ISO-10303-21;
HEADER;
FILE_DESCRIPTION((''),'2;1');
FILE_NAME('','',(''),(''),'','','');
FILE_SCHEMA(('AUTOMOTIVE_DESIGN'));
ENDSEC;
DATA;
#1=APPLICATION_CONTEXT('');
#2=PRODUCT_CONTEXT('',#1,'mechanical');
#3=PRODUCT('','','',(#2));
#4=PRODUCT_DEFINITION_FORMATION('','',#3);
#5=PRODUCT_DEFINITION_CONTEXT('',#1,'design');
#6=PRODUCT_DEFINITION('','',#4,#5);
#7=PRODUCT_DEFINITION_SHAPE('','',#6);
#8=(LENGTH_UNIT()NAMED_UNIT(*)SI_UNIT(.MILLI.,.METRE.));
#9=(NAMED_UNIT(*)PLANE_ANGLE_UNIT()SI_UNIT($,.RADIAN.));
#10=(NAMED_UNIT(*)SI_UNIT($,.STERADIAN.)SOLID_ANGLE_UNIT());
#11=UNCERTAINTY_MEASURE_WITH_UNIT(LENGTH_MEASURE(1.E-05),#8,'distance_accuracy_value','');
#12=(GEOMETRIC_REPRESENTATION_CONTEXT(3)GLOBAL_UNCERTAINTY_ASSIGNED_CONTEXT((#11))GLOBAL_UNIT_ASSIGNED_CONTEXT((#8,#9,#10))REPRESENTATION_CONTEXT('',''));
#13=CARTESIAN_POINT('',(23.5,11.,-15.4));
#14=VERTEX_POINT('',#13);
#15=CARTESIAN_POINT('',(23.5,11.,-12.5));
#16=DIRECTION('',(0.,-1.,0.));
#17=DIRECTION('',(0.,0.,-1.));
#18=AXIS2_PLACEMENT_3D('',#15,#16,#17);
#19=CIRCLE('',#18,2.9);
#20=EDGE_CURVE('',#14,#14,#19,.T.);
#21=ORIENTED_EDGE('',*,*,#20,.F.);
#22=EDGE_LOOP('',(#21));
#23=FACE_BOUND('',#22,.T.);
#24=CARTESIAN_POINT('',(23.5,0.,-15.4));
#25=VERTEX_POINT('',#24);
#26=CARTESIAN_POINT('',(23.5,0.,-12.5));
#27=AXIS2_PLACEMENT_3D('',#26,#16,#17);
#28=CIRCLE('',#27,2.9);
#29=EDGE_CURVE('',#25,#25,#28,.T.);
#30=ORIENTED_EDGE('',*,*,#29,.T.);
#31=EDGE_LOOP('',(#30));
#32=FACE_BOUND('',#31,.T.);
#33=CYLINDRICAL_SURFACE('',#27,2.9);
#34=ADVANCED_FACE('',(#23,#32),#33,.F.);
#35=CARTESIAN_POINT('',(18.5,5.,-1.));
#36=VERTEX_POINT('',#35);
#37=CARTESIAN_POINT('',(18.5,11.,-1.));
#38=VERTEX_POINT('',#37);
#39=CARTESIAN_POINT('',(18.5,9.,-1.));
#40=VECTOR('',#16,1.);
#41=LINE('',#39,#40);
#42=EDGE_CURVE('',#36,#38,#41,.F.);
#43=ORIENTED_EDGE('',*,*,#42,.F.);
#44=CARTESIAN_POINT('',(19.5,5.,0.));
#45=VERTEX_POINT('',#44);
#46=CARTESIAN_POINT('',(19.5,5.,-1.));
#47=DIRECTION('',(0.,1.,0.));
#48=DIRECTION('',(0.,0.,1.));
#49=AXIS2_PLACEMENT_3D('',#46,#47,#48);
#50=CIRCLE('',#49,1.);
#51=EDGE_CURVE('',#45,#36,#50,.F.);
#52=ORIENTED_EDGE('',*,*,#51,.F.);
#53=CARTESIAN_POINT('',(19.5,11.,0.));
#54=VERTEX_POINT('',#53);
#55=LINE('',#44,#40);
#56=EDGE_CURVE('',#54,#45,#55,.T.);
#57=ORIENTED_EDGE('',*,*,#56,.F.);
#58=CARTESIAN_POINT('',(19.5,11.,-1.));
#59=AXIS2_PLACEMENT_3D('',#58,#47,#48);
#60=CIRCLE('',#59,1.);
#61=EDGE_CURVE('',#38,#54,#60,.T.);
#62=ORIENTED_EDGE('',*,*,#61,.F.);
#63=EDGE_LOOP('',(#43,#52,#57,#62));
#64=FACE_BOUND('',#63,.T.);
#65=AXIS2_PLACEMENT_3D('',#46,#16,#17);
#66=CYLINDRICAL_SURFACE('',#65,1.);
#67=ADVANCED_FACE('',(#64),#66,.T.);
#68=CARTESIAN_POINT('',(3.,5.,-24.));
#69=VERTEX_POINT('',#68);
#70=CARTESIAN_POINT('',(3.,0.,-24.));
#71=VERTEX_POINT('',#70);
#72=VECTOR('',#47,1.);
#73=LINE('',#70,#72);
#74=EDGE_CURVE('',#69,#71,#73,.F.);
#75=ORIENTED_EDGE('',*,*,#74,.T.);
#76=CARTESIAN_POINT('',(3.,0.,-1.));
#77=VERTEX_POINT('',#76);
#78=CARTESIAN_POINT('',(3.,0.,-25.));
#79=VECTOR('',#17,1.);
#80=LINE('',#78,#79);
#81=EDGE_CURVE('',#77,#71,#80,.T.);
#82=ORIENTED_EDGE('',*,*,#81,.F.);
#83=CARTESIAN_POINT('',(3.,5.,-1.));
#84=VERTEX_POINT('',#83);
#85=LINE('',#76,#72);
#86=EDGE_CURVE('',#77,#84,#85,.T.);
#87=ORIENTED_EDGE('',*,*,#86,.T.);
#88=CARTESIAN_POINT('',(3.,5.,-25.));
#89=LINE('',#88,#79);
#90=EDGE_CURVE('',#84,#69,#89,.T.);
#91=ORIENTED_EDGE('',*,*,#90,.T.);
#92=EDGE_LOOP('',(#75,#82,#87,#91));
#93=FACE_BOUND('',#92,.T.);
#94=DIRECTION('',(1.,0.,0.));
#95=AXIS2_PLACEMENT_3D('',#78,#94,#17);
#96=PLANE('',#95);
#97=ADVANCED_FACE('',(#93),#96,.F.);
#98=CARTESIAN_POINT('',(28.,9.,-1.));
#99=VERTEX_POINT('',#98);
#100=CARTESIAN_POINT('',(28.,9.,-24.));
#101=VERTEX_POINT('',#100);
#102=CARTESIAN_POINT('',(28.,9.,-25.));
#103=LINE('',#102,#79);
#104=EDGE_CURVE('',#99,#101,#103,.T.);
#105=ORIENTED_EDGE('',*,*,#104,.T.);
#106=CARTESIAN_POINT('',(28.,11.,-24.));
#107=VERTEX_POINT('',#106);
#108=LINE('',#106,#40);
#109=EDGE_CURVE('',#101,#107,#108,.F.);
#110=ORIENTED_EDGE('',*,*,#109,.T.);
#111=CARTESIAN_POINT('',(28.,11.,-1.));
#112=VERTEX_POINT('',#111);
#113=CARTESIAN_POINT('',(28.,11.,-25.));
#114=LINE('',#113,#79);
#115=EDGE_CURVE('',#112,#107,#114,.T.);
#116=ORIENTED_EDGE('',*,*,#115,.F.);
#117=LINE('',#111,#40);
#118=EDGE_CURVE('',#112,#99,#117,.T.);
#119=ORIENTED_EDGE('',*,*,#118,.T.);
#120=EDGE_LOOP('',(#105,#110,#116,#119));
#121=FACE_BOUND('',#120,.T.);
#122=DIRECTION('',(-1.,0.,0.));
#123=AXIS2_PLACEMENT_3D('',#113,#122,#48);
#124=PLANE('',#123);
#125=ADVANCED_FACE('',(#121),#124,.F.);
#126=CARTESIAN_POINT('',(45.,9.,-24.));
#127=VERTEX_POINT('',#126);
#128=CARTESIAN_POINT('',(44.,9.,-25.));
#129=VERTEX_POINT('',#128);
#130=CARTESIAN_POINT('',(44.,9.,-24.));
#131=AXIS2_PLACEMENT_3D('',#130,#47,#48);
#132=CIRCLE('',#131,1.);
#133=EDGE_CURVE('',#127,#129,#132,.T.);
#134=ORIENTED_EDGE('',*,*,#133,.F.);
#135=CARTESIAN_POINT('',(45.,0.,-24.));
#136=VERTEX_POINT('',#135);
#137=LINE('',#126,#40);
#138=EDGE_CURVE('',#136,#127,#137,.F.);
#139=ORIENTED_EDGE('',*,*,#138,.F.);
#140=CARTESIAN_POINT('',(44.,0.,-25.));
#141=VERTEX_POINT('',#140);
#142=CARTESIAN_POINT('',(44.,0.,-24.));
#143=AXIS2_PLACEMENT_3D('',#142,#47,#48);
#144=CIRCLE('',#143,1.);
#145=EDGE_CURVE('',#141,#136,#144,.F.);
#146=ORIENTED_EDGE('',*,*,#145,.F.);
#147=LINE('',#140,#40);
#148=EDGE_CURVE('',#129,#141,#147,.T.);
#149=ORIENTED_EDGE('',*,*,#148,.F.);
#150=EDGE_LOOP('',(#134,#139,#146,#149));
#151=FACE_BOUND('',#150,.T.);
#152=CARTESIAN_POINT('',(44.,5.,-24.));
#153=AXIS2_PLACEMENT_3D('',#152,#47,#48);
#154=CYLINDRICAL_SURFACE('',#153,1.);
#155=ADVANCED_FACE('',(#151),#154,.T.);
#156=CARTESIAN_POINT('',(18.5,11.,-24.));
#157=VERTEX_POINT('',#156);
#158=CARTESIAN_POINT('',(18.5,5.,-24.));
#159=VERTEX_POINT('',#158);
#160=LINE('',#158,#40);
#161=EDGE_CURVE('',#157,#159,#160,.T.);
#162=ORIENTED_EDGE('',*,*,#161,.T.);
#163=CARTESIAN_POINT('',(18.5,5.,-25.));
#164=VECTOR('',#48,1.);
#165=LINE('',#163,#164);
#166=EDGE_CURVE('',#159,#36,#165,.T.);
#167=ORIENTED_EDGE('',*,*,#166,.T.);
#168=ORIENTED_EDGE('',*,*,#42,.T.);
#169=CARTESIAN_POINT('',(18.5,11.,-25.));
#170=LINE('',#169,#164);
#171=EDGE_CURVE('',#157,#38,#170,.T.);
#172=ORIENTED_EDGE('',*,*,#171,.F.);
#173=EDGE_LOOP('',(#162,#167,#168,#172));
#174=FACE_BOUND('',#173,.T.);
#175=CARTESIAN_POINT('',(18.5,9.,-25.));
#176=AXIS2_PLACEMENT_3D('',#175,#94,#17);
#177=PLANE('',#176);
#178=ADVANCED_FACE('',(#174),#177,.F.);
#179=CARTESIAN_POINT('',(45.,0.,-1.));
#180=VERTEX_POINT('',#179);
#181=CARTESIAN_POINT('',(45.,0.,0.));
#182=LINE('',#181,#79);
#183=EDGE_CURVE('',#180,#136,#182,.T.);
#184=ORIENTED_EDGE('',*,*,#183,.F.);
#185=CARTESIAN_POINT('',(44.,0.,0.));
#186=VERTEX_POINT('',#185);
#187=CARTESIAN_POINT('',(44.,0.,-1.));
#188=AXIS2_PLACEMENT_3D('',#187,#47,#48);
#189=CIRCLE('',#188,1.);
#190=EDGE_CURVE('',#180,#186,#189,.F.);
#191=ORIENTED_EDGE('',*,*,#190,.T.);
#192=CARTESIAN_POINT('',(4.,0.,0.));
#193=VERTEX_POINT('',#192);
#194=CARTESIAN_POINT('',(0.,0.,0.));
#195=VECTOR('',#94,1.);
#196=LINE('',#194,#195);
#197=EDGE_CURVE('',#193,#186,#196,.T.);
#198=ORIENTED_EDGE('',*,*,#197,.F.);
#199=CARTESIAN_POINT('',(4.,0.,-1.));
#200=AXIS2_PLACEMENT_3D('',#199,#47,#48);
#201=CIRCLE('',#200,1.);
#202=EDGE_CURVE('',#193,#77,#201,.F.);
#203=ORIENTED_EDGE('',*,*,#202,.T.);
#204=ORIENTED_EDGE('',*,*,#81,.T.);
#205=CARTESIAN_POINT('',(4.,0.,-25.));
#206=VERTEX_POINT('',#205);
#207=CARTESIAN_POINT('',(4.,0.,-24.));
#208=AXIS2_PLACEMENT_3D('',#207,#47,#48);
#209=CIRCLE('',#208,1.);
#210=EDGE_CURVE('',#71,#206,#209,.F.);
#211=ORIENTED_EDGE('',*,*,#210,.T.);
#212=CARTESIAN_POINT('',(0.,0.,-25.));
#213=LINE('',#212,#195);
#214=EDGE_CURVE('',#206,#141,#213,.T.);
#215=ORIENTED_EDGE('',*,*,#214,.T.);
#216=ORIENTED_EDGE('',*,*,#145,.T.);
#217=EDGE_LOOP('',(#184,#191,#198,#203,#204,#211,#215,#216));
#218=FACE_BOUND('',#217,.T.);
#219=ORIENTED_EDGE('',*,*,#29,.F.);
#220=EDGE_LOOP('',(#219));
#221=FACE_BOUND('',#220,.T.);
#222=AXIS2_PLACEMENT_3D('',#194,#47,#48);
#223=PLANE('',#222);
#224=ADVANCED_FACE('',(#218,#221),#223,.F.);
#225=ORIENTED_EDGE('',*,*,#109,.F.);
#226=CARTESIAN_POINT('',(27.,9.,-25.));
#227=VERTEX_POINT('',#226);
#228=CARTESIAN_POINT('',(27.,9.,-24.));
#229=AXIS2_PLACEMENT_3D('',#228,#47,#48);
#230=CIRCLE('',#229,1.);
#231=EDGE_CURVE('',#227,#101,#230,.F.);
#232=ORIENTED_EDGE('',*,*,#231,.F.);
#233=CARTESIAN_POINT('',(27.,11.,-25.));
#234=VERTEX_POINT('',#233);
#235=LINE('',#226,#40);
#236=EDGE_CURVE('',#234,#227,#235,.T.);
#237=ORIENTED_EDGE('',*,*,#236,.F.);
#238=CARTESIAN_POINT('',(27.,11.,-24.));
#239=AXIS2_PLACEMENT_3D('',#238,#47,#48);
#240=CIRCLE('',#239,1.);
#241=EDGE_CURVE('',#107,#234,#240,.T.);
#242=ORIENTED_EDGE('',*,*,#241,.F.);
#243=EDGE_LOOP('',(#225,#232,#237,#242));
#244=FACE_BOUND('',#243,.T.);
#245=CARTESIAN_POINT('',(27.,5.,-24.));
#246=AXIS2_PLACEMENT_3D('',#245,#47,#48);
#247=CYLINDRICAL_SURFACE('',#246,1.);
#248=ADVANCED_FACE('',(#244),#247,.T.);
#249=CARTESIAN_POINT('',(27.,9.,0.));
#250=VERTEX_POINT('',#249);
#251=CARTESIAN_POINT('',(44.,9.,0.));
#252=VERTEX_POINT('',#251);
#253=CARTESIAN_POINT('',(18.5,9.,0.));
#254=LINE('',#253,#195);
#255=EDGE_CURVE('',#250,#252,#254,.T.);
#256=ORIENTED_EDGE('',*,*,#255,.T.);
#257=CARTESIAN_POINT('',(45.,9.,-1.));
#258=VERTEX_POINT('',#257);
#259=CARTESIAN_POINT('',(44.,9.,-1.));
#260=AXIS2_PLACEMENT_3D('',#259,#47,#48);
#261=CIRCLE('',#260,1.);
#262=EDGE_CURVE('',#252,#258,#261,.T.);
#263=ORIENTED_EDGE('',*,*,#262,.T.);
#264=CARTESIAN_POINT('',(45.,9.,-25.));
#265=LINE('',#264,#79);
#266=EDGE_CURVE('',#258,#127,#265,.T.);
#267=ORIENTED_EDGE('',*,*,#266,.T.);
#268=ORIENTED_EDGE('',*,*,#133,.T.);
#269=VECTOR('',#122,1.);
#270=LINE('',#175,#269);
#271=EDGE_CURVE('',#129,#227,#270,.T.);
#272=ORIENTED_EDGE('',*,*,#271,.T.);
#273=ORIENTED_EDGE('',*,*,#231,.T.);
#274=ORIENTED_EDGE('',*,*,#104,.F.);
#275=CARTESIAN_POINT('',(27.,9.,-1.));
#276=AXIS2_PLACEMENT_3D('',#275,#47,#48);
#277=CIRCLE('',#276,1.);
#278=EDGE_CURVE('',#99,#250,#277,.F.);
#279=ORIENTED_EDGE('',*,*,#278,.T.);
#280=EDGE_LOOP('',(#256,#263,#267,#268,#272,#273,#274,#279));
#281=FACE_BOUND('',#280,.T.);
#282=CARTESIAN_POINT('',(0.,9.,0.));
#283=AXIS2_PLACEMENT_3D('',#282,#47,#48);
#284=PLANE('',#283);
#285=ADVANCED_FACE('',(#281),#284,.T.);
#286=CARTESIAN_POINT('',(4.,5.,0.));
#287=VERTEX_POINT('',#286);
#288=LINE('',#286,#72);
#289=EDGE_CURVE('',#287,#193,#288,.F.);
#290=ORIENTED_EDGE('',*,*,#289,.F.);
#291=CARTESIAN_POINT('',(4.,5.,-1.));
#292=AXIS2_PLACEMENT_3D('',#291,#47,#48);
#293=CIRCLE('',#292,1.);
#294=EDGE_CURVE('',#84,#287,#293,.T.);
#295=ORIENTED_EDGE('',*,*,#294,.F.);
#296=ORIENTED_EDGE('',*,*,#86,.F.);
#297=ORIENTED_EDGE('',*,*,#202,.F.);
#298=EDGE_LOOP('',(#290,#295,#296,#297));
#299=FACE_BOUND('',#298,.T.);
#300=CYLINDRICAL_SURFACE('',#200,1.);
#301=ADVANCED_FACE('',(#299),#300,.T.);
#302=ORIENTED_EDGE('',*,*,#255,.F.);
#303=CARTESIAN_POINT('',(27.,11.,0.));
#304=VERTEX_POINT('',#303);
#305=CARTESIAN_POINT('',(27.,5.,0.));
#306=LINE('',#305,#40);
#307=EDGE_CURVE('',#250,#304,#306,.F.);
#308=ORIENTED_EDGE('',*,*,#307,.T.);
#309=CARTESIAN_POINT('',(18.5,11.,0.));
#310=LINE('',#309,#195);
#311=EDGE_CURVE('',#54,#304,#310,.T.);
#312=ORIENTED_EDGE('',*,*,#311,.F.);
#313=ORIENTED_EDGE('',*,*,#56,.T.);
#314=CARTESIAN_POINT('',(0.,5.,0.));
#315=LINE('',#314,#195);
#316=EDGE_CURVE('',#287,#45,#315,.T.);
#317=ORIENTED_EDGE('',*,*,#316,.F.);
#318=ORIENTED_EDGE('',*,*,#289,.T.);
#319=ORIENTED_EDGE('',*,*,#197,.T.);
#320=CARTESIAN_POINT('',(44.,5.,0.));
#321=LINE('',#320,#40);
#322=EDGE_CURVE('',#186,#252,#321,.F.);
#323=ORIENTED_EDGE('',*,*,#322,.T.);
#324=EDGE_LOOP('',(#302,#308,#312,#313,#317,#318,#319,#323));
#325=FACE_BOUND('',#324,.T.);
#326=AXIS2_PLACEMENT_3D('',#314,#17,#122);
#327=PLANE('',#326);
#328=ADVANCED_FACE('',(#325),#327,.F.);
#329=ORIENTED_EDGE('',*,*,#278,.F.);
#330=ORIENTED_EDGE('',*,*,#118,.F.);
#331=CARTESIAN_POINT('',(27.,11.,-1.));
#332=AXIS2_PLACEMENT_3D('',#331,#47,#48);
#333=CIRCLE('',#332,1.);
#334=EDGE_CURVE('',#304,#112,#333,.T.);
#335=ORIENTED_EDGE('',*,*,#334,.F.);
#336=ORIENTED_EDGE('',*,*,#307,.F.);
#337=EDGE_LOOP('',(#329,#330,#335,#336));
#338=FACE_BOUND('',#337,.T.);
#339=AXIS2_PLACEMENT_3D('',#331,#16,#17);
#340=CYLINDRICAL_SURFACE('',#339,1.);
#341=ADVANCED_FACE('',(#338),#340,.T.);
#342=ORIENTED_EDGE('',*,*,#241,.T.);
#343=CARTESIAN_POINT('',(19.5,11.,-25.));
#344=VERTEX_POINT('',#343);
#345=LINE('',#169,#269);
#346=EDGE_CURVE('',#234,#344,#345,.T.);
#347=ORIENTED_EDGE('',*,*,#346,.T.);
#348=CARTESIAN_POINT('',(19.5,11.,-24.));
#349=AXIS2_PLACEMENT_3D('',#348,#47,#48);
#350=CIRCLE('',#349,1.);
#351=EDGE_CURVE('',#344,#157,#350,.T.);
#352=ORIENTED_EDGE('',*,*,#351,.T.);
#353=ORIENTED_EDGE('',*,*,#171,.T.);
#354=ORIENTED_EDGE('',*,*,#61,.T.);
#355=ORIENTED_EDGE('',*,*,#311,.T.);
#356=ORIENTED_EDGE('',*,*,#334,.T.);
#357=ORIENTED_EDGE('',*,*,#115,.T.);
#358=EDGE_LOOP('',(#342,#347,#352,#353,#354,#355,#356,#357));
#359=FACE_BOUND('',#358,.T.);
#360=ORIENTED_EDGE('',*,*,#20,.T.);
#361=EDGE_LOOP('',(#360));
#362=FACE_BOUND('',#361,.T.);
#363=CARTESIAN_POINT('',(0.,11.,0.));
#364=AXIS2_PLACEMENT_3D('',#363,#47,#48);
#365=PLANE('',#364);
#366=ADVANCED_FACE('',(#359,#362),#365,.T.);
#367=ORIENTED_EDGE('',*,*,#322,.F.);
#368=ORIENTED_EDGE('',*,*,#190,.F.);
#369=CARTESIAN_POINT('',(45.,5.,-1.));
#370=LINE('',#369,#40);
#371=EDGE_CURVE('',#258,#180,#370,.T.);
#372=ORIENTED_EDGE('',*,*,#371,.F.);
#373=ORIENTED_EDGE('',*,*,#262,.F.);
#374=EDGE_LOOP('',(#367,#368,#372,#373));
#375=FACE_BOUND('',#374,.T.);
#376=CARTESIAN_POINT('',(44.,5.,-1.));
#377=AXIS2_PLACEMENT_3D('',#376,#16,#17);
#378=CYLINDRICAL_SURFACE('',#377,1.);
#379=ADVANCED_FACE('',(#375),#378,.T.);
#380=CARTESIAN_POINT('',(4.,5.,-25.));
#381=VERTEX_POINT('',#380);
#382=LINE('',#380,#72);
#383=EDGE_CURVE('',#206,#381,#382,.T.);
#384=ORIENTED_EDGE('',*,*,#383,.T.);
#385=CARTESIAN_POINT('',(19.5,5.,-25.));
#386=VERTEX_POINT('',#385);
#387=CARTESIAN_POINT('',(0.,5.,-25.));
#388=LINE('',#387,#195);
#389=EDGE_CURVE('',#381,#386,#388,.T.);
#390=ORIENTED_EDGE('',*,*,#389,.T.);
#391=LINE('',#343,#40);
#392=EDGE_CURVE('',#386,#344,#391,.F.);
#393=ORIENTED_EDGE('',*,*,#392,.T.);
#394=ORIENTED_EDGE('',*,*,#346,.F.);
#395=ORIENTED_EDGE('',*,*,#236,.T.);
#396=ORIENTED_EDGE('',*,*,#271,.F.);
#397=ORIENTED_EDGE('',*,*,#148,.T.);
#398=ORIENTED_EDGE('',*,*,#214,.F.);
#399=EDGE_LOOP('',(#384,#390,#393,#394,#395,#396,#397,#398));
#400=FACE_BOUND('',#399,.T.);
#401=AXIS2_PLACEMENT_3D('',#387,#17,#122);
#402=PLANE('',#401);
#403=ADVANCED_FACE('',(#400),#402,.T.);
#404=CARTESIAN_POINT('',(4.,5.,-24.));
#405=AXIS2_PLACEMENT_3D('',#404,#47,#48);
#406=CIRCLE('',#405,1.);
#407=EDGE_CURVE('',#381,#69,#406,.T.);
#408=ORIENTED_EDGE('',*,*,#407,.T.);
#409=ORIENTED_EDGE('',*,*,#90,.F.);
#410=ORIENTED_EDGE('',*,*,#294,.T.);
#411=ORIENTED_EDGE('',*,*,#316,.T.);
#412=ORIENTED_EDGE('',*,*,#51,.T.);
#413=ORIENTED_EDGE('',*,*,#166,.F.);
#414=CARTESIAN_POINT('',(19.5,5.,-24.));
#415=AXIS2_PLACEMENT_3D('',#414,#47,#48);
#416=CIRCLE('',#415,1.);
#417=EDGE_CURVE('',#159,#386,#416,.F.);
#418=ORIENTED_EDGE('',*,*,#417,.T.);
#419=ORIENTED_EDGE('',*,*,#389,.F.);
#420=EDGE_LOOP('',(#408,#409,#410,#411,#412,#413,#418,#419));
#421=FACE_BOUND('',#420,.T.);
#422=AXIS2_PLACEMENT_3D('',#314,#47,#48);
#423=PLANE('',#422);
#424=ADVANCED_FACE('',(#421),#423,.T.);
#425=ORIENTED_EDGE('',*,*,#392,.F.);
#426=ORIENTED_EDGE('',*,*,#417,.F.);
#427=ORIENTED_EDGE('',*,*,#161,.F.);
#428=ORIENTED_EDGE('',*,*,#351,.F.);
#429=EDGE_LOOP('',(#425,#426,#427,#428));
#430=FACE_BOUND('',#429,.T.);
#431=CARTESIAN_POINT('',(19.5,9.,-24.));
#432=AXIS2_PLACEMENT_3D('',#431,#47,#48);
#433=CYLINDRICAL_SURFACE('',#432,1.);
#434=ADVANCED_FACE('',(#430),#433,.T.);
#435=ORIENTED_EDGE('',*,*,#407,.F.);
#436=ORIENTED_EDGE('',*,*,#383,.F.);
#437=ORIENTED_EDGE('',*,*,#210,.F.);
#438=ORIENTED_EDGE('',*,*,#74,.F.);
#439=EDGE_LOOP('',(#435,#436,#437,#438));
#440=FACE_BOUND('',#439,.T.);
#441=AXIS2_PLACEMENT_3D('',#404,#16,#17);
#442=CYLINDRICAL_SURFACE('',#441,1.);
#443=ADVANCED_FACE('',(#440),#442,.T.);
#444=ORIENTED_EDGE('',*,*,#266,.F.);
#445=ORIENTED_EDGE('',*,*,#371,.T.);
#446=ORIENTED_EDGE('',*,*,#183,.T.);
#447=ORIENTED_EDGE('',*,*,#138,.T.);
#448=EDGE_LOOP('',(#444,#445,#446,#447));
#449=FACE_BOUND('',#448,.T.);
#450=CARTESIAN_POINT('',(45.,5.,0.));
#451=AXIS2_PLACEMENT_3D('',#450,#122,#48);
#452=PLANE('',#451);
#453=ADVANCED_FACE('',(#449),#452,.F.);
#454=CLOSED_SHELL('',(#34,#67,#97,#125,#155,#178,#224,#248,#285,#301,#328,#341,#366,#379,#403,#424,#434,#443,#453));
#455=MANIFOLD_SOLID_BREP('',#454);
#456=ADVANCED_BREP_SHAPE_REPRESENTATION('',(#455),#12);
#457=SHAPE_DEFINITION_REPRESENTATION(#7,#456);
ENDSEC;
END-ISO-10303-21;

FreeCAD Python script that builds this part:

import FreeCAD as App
import Part
import Sketcher

V = App.Vector


def edges_at(feature, points):
    """Names of the edges that pass closest to the given points."""
    edges = feature.Shape.Edges
    near = lambda p: min(range(len(edges)), key=lambda i: edges[i].distToShape(Part.Vertex(*p))[0])
    return sorted({f"Edge{near(p) + 1}" for p in points})


def add_polygon(sketch, points):
    """Adds a closed chain of lines whose ends are joined by coincident constraints."""
    first, n = sketch.GeometryCount, len(points)
    for a, b in zip(points, points[1:] + points[:1]):
        sketch.addGeometry(Part.LineSegment(App.Vector(*a, 0), App.Vector(*b, 0)), False)
    for i in range(n):
        sketch.addConstraint(Sketcher.Constraint("Coincident", first + i, 2, first + (i + 1) % n, 1))

doc = App.newDocument("Part")
body = doc.addObject("PartDesign::Body", "Body")

# Sketch on XZ plane
sketch1 = doc.addObject("Sketcher::SketchObject", "Sketch")
body.addObject(sketch1)
sketch1.AttachmentSupport = (doc.XZ_Plane, [""])
sketch1.MapMode = "FlatFace"
add_polygon(sketch1, [(0, -25), (0, 0), (45, 0), (45, -25)])  # lines 0-3
sketch1.addConstraint(Sketcher.Constraint("Vertical", 0))
sketch1.addConstraint(Sketcher.Constraint("Horizontal", 1))
sketch1.addConstraint(Sketcher.Constraint("Vertical", 2))
sketch1.addConstraint(Sketcher.Constraint("Horizontal", 3))
sketch1.addConstraint(Sketcher.Constraint("Coincident", 0, 2, -1, 1))
sketch1.addConstraint(Sketcher.Constraint("DistanceX", 1, 1, 1, 2, 45.0))
sketch1.addConstraint(Sketcher.Constraint("DistanceY", 0, 1, 0, 2, 25.0))
pad1 = doc.addObject("PartDesign::Pad", "Pad")
body.addObject(pad1)
pad1.Profile = sketch1
pad1.Length = 5
pad1.Reversed = True

# Sketch on XZ plane
sketch2 = doc.addObject("Sketcher::SketchObject", "Sketch001")
body.addObject(sketch2)
sketch2.AttachmentSupport = (doc.XZ_Plane, [""])
sketch2.MapMode = "FlatFace"
sketch2.AttachmentOffset = App.Placement(V(0, 0, -5), App.Rotation())
add_polygon(sketch2, [(18, -25), (18, 0), (45, 0), (45, -25)])  # lines 0-3
sketch2.addConstraint(Sketcher.Constraint("Vertical", 0))
sketch2.addConstraint(Sketcher.Constraint("Horizontal", 1))
sketch2.addConstraint(Sketcher.Constraint("Vertical", 2))
sketch2.addConstraint(Sketcher.Constraint("Horizontal", 3))
sketch2.addConstraint(Sketcher.Constraint("PointOnObject", 0, 2, -1))
sketch2.addConstraint(Sketcher.Constraint("DistanceY", 0, 1, 0, 2, 25.0))
sketch2.addConstraint(Sketcher.Constraint("DistanceX", 1, 1, 1, 2, 26.5))
sketch2.addConstraint(Sketcher.Constraint("DistanceX", -1, 1, 1, 2, 45.0))
pad2 = doc.addObject("PartDesign::Pad", "Pad001")
body.addObject(pad2)
pad2.Profile = sketch2
pad2.Length = 4
pad2.Reversed = True

# Sketch on XZ plane
sketch3 = doc.addObject("Sketcher::SketchObject", "Sketch002")
body.addObject(sketch3)
sketch3.AttachmentSupport = (doc.XZ_Plane, [""])
sketch3.MapMode = "FlatFace"
sketch3.AttachmentOffset = App.Placement(V(0, 0, -9), App.Rotation())
add_polygon(sketch3, [(18, -25), (18, 0), (28, 0), (28, -25)])  # lines 0-3
sketch3.addConstraint(Sketcher.Constraint("Vertical", 0))
sketch3.addConstraint(Sketcher.Constraint("Horizontal", 1))
sketch3.addConstraint(Sketcher.Constraint("Vertical", 2))
sketch3.addConstraint(Sketcher.Constraint("Horizontal", 3))
sketch3.addConstraint(Sketcher.Constraint("PointOnObject", 0, 2, -1))
sketch3.addConstraint(Sketcher.Constraint("DistanceY", 0, 1, 0, 2, 25.0))
sketch3.addConstraint(Sketcher.Constraint("DistanceX", 1, 1, 1, 2, 9.5))
sketch3.addConstraint(Sketcher.Constraint("DistanceX", -1, 1, 1, 2, 28.0))
pad3 = doc.addObject("PartDesign::Pad", "Pad002")
body.addObject(pad3)
pad3.Profile = sketch3
pad3.Length = 2
pad3.Reversed = True

# Sketch on XZ plane
sketch4 = doc.addObject("Sketcher::SketchObject", "Sketch003")
body.addObject(sketch4)
sketch4.AttachmentSupport = (doc.XZ_Plane, [""])
sketch4.MapMode = "FlatFace"
sketch4.AttachmentOffset = App.Placement(V(0, 0, -5), App.Rotation())
add_polygon(sketch4, [(0, -25), (0, 0), (3, 0), (3, -25)])  # lines 0-3
sketch4.addConstraint(Sketcher.Constraint("Vertical", 0))
sketch4.addConstraint(Sketcher.Constraint("Horizontal", 1))
sketch4.addConstraint(Sketcher.Constraint("Vertical", 2))
sketch4.addConstraint(Sketcher.Constraint("Horizontal", 3))
sketch4.addConstraint(Sketcher.Constraint("Coincident", 0, 2, -1, 1))
sketch4.addConstraint(Sketcher.Constraint("DistanceX", 1, 1, 1, 2, 3.0))
sketch4.addConstraint(Sketcher.Constraint("DistanceY", 0, 1, 0, 2, 25.0))
pocket1 = doc.addObject("PartDesign::Pocket", "Pocket")
body.addObject(pocket1)
pocket1.Profile = sketch4
pocket1.Type = "ThroughAll"
pocket1.Reversed = True

# Sketch on XZ plane
sketch5 = doc.addObject("Sketcher::SketchObject", "Sketch004")
body.addObject(sketch5)
sketch5.AttachmentSupport = (doc.XZ_Plane, [""])
sketch5.MapMode = "FlatFace"
sketch5.addGeometry(Part.Circle(V(23.5, -12.5, 0), V(0, 0, 1), 2.9), False)
sketch5.addConstraint(Sketcher.Constraint("Diameter", 0, 5.8))
sketch5.addConstraint(Sketcher.Constraint("DistanceX", -1, 1, 0, 3, 23.5))
sketch5.addConstraint(Sketcher.Constraint("DistanceY", 0, 3, -1, 1, 12.5))
doc.recompute()
hole = doc.addObject("PartDesign::Hole", "Hole")
body.addObject(hole)
hole.Profile = sketch5
hole.ThreadType = "None"
hole.Diameter = 5.8
hole.DepthType = "ThroughAll"
doc.recompute()

fillet = doc.addObject("PartDesign::Fillet", "Fillet")
body.addObject(fillet)
fillet.Base = (hole, edges_at(hole, [
    (18.5, 8, -25),
    (18.5, 8, 0),
    (28, 10, 0),
    (28, 10, -25),
    (3, 2.5, -25),
    (3, 2.5, 0),
    (45, 4.5, -25),
    (45, 4.5, 0),
]))
fillet.Radius = 1

doc.recompute()
